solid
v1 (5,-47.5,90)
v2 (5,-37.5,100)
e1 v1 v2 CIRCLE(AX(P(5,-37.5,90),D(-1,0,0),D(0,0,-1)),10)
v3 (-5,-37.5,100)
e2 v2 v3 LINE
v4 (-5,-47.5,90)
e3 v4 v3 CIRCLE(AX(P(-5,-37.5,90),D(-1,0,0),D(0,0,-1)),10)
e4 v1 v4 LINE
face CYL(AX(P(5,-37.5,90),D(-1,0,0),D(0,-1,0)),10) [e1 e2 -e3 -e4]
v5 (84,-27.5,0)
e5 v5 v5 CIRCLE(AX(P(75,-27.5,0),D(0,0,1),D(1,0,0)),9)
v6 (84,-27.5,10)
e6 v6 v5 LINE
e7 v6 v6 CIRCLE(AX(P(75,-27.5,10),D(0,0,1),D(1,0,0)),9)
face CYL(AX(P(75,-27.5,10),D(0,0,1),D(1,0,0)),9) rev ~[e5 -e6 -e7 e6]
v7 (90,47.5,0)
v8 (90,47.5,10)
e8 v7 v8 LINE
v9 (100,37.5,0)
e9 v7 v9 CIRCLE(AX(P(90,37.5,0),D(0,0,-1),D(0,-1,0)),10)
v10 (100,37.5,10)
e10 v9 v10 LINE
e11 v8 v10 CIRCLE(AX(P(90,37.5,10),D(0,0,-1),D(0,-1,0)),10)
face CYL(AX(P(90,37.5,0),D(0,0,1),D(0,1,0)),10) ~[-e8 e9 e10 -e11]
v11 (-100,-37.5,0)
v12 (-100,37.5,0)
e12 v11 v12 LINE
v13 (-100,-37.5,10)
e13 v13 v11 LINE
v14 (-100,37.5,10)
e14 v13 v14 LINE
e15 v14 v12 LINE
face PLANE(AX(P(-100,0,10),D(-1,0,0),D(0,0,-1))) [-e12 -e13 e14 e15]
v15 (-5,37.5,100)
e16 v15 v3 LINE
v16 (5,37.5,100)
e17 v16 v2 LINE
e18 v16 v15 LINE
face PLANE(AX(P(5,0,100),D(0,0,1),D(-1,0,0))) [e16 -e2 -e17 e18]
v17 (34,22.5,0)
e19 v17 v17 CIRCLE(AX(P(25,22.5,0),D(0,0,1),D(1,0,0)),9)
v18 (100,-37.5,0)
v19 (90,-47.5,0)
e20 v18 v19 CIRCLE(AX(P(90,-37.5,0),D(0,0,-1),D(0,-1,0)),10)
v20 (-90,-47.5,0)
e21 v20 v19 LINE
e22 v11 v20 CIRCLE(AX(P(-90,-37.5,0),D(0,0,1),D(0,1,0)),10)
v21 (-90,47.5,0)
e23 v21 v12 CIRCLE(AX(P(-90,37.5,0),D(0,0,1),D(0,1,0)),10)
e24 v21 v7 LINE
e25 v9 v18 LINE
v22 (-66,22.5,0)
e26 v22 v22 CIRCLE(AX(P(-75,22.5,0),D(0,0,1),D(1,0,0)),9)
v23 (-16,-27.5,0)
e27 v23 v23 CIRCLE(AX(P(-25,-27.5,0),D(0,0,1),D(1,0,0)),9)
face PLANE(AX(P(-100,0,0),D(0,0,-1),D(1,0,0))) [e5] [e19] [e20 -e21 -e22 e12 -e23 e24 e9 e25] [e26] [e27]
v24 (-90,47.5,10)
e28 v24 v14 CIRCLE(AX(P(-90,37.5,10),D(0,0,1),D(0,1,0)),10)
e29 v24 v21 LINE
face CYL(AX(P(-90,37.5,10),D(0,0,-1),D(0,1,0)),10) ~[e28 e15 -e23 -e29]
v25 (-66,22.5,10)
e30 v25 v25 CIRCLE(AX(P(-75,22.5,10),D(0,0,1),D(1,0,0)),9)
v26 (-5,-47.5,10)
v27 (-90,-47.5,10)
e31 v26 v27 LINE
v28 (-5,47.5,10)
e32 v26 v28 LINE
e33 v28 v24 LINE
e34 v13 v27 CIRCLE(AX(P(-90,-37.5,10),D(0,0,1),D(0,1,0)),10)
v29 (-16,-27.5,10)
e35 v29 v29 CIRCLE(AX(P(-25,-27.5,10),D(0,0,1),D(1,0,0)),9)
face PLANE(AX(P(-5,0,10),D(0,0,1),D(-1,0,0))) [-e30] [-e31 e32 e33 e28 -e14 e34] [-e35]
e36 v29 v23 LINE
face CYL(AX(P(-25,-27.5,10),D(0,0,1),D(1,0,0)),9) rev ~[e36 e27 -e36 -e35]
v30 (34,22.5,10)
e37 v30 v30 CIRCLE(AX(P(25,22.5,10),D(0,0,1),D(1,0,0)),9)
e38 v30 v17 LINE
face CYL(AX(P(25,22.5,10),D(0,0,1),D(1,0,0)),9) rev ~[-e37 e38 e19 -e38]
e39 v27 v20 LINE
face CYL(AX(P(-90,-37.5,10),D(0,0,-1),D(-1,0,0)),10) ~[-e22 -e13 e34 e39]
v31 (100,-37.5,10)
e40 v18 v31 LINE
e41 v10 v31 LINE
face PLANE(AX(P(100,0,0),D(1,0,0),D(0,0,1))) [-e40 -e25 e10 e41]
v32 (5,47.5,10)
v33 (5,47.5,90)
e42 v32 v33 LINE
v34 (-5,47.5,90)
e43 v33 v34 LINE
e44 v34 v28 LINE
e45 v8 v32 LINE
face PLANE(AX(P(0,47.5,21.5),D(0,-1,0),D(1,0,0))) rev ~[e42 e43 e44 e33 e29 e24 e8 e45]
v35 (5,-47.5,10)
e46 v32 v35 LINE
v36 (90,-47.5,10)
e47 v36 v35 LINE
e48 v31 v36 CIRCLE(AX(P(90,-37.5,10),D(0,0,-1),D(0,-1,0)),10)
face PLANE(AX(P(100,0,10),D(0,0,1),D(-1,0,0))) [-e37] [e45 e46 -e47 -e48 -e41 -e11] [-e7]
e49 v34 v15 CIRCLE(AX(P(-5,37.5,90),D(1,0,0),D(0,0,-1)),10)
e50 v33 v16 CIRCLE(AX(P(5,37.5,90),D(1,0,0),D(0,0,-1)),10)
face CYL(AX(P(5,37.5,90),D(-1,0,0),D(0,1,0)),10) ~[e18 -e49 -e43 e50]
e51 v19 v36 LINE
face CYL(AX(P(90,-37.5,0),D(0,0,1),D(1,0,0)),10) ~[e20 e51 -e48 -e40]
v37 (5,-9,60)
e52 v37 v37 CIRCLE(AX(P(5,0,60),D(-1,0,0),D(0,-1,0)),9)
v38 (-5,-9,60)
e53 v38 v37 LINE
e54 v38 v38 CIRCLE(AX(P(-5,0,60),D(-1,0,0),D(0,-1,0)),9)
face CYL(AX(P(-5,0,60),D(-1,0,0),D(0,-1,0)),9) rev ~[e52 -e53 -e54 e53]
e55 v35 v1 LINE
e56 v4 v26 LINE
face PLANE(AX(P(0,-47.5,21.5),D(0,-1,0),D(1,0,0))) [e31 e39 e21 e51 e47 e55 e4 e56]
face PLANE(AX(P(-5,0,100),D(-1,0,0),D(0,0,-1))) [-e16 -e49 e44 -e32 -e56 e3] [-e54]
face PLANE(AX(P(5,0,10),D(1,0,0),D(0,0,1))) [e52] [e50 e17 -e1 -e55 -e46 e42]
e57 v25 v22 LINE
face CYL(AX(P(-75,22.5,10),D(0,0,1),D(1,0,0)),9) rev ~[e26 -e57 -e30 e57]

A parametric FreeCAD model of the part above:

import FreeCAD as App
import Part
import Sketcher

V = App.Vector
Q = App.Units.Quantity


def edges_at(feature, points):
    """Names of the edges that pass closest to the given points."""
    edges = feature.Shape.Edges
    near = lambda p: min(range(len(edges)), key=lambda i: edges[i].distToShape(Part.Vertex(*p))[0])
    return sorted({f"Edge{near(p) + 1}" for p in points})

doc = App.newDocument("Part")
body = doc.addObject("PartDesign::Body", "Body")

# Sketch on XZ plane
sketch1 = body.newObject("Sketcher::SketchObject", "Sketch")
sketch1.AttachmentSupport = (doc.getObject("XZ_Plane"), [""])
sketch1.MapMode = "FlatFace"
sketch1.addGeometry([
    Part.LineSegment(V(-100, 0, 0), V(100, 0, 0)),  # 0
    Part.LineSegment(V(100, 0, 0), V(100, 10, 0)),  # 1
    Part.LineSegment(V(100, 10, 0), V(5, 10, 0)),  # 2
    Part.LineSegment(V(5, 10, 0), V(5, 100, 0)),  # 3
    Part.LineSegment(V(5, 100, 0), V(-5, 100, 0)),  # 4
    Part.LineSegment(V(-5, 100, 0), V(-5, 10, 0)),  # 5
    Part.LineSegment(V(-5, 10, 0), V(-100, 10, 0)),  # 6
    Part.LineSegment(V(-100, 10, 0), V(-100, 0, 0)),  # 7
], False)
sketch1.addConstraint([
    Sketcher.Constraint("Coincident", 0, 2, 1, 1),
    Sketcher.Constraint("Coincident", 1, 2, 2, 1),
    Sketcher.Constraint("Coincident", 2, 2, 3, 1),
    Sketcher.Constraint("Coincident", 3, 2, 4, 1),
    Sketcher.Constraint("Coincident", 4, 2, 5, 1),
    Sketcher.Constraint("Coincident", 5, 2, 6, 1),
    Sketcher.Constraint("Coincident", 6, 2, 7, 1),
    Sketcher.Constraint("Coincident", 7, 2, 0, 1),
    Sketcher.Constraint("Horizontal", 0),
    Sketcher.Constraint("Vertical", 1),
    Sketcher.Constraint("Horizontal", 2),
    Sketcher.Constraint("Vertical", 3),
    Sketcher.Constraint("Horizontal", 4),
    Sketcher.Constraint("Vertical", 5),
    Sketcher.Constraint("Horizontal", 6),
    Sketcher.Constraint("Vertical", 7),
    Sketcher.Constraint("Symmetric", 0, 2, 7, 2, -1, 1),
    Sketcher.Constraint("Symmetric", 2, 2, 5, 2, -2),
    Sketcher.Constraint("Equal", 4, 1),
    Sketcher.Constraint("DistanceX", 0, 1, 0, 2, Q("200 mm")),
    Sketcher.Constraint("DistanceX", 2, 2, 2, 1, Q("95 mm")),
    Sketcher.Constraint("DistanceY", 3, 1, 3, 2, Q("90 mm")),
])
pad1 = body.newObject("PartDesign::Pad", "Pad")
pad1.Profile = sketch1
pad1.Length = 95
pad1.Midplane = True

# Sketch on XY plane
sketch2 = body.newObject("Sketcher::SketchObject", "Sketch001")
sketch2.AttachmentSupport = (doc.getObject("XY_Plane"), [""])
sketch2.MapMode = "FlatFace"
sketch2.AttachmentOffset = App.Placement(V(0, 0, 10), App.Rotation())
sketch2.addGeometry([
    Part.Circle(V(75, -28, 0), V(0, 0, 1), 9),
    Part.Circle(V(25, 22, 0), V(0, 0, 1), 9),
    Part.Circle(V(-25, -28, 0), V(0, 0, 1), 9),
    Part.Circle(V(-75, 22, 0), V(0, 0, 1), 9),
], False)
sketch2.addConstraint([
    Sketcher.Constraint("Equal", 0, 1),
    Sketcher.Constraint("Equal", 1, 2),
    Sketcher.Constraint("Equal", 2, 3),
    Sketcher.Constraint("Horizontal", 0, 3, 2, 3),
    Sketcher.Constraint("Horizontal", 1, 3, 3, 3),
    Sketcher.Constraint("Diameter", 0, Q("18 mm")),
    Sketcher.Constraint("DistanceX", -1, 1, 0, 3, Q("75 mm")),
    Sketcher.Constraint("DistanceX", -1, 1, 1, 3, Q("25 mm")),
    Sketcher.Constraint("DistanceX", 2, 3, -1, 1, Q("25 mm")),
    Sketcher.Constraint("DistanceX", 3, 3, -1, 1, Q("75 mm")),
    Sketcher.Constraint("DistanceY", 0, 3, 1, 3, Q("50 mm")),
    Sketcher.Constraint("DistanceY", 0, 3, -1, 1, Q("27.5 mm")),
])
pocket1 = body.newObject("PartDesign::Pocket", "Pocket")
pocket1.Profile = sketch2
pocket1.Length = 25

# Sketch on YZ plane
sketch3 = body.newObject("Sketcher::SketchObject", "Sketch002")
sketch3.AttachmentSupport = (doc.getObject("YZ_Plane"), [""])
sketch3.MapMode = "FlatFace"
sketch3.AttachmentOffset = App.Placement(V(0, 0, -5), App.Rotation())
sketch3.addGeometry(Part.Circle(V(0, 60, 0), V(0, 0, 1), 9), False)
sketch3.addConstraint([
    Sketcher.Constraint("PointOnObject", 0, 3, -2),
    Sketcher.Constraint("Diameter", 0, Q("18 mm")),
    Sketcher.Constraint("DistanceY", -1, 1, 0, 3, Q("60 mm")),
])
pocket2 = body.newObject("PartDesign::Pocket", "Pocket001")
pocket2.Profile = sketch3
pocket2.Length = 25
pocket2.Reversed = True
doc.recompute()

fillet = body.newObject("PartDesign::Fillet", "Fillet")
fillet.Base = (pocket2, edges_at(pocket2, [
    (0, -47.5, 100),
    (0, 47.5, 100),
    (-100, 47.5, 5),
    (-100, -47.5, 5),
    (100, 47.5, 5),
    (100, -47.5, 5),
]))
fillet.Radius = 10

doc.recompute()
